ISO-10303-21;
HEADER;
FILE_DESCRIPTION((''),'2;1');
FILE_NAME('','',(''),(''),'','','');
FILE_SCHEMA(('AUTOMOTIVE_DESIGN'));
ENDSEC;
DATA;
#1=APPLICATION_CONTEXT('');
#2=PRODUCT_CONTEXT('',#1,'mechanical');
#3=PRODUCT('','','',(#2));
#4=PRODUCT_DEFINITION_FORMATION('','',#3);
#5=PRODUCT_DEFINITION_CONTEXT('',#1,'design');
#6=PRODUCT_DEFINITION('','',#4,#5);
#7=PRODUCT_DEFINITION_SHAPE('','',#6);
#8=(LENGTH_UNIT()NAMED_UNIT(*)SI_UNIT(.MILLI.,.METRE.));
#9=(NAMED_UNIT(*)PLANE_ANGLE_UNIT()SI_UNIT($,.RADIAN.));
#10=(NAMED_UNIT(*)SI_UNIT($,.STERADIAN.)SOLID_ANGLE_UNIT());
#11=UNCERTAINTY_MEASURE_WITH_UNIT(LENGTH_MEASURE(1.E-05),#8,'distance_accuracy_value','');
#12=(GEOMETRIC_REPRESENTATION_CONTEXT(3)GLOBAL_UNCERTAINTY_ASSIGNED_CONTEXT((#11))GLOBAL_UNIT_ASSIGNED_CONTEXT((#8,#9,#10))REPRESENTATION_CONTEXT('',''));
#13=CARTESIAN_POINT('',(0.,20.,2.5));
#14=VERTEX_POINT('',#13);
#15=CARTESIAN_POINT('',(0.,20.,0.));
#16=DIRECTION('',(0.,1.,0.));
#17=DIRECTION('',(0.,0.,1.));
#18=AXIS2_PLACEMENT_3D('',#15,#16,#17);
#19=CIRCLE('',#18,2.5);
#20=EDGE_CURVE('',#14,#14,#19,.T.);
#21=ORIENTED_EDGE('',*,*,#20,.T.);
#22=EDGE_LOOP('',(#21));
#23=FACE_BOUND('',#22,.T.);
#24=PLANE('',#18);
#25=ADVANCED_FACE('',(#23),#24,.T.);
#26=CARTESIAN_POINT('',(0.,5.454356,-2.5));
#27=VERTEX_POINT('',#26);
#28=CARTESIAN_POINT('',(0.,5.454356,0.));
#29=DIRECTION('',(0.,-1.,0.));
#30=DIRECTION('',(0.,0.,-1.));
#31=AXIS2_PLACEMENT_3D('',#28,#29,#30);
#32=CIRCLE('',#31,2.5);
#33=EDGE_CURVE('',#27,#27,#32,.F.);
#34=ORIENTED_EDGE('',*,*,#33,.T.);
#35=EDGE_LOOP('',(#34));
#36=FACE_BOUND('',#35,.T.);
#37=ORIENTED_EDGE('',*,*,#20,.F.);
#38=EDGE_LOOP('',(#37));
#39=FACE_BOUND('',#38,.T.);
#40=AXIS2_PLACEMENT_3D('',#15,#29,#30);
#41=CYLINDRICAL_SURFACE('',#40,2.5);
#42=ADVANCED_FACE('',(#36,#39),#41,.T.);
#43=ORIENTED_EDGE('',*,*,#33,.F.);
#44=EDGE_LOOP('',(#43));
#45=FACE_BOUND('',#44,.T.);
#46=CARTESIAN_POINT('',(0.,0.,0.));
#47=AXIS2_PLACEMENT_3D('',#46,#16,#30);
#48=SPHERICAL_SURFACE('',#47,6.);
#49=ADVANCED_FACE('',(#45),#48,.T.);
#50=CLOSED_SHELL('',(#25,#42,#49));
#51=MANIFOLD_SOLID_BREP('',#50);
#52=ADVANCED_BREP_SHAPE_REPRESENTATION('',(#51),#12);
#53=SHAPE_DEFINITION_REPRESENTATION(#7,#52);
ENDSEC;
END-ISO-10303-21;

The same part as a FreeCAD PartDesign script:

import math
import FreeCAD as App
import Part
import Sketcher
from FreeCAD import Vector
Q = App.Units.Quantity

doc = App.newDocument("Part")
body = doc.addObject("PartDesign::Body", "Body")

sketch1 = doc.addObject("Sketcher::SketchObject", "Sketch")
body.addObject(sketch1)
sketch1.AttachmentSupport = (doc.YZ_Plane, [""])
sketch1.MapMode = "FlatFace"
sketch1.addGeometry([
    Part.LineSegment(Vector(6, 0, 0), Vector(-6, 0, 0)),
    Part.ArcOfCircle(Part.Circle(Vector(0, 0, 0), Vector(0, 0, 1), 6), math.radians(180), math.radians(360)),
], False)
sketch1.addConstraint([
    Sketcher.Constraint("Coincident", 0, 1, 1, 2),
    Sketcher.Constraint("Coincident", 1, 1, 0, 2),
    Sketcher.Constraint("Horizontal", 0),
    Sketcher.Constraint("Coincident", 1, 3, -1, 1),
    Sketcher.Constraint("PointOnObject", 0, 1, -1),
    Sketcher.Constraint("Radius", 1, Q("6 mm")),
])
revolution = doc.addObject("PartDesign::Revolution", "Revolution")
body.addObject(revolution)
revolution.Profile = sketch1
revolution.ReferenceAxis = (sketch1, ["H_Axis"])
revolution.Angle = 360

sketch2 = doc.addObject("Sketcher::SketchObject", "Sketch001")
body.addObject(sketch2)
sketch2.AttachmentSupport = (doc.XZ_Plane, [""])
sketch2.MapMode = "FlatFace"
sketch2.addGeometry(Part.Circle(Vector(0, 0, 0), Vector(0, 0, 1), 2.5), False)
sketch2.addConstraint([
    Sketcher.Constraint("Coincident", 0, 3, -1, 1),
    Sketcher.Constraint("Diameter", 0, Q("5 mm")),
])
pad1 = doc.addObject("PartDesign::Pad", "Pad")
body.addObject(pad1)
pad1.Profile = sketch2
pad1.Length = 20
pad1.Reversed = True

doc.recompute()
